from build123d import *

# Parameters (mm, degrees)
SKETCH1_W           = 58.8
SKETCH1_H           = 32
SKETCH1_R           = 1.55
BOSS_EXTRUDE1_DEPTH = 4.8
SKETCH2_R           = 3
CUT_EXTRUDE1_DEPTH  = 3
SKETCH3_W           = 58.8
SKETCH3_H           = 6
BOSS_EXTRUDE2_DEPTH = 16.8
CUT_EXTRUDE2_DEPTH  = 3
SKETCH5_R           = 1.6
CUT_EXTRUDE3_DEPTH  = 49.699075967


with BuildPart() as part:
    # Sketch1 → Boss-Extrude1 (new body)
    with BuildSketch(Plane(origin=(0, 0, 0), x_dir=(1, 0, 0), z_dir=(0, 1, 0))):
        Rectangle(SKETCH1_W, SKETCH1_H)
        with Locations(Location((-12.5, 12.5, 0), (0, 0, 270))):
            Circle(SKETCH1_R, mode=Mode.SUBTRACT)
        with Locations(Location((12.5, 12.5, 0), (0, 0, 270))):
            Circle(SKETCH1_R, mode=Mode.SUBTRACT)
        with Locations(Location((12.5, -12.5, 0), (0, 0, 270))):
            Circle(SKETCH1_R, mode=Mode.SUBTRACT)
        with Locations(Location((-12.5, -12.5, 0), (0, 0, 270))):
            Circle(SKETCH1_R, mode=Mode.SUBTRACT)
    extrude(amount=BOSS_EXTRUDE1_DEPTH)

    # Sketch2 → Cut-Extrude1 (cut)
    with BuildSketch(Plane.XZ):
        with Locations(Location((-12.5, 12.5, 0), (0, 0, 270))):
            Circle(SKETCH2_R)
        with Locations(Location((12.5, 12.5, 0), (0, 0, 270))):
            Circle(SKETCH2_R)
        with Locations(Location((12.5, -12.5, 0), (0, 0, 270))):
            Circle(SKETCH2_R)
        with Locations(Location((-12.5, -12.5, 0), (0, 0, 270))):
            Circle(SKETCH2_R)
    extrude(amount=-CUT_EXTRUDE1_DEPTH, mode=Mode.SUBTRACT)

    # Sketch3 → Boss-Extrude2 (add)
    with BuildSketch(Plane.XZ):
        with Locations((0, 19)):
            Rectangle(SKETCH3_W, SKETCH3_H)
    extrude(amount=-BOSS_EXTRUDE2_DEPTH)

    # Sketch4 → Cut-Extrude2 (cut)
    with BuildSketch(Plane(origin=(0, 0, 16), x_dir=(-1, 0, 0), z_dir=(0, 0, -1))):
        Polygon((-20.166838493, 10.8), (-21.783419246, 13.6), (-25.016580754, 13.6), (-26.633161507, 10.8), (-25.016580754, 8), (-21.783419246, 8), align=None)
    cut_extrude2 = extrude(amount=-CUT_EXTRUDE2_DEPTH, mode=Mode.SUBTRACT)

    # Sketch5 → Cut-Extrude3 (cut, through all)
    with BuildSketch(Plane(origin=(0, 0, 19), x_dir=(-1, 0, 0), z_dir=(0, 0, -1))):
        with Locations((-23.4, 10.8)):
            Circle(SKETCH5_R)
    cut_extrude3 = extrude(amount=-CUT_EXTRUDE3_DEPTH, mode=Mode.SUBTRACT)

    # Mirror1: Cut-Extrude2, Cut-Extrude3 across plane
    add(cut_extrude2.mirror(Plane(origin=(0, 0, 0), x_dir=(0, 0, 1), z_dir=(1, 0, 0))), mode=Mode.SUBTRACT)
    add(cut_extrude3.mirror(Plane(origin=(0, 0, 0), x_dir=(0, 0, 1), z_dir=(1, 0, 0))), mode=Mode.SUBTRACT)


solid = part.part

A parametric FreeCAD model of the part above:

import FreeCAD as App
import Part
import Sketcher
Q = App.Units.Quantity

doc = App.newDocument("Part")
params = doc.addObject("Spreadsheet::Sheet", "Params")
for row, (alias, value) in enumerate([
    ("sketch1_diameter", "3.1 mm"),
    ("sketch1_height", "32 mm"),
    ("sketch1_width", "58.8 mm"),
    ("pad1_length", "4.8 mm"),
    ("sketch2_diameter", "6 mm"),
    ("pocket1_length", "3 mm"),
    ("sketch3_height", "6 mm"),
    ("sketch3_width", "58.8 mm"),
    ("pad2_length", "16.8 mm"),
    ("pocket2_length", "3 mm"),
    ("sketch5_diameter", "3.2 mm"),
], start=1):
    params.set(f"A{row}", alias)
    params.set(f"B{row}", "=" + value)
    params.setAlias(f"B{row}", alias)

body = doc.addObject("PartDesign::Body", "Body")

# Sketch on XZ plane
sketch1 = body.newObject("Sketcher::SketchObject", "Sketch")
sketch1.AttachmentSupport = (doc.getObject("XZ_Plane"), [""])
sketch1.MapMode = "FlatFace"
sketch1.addGeometry([
    Part.LineSegment(App.Vector(-29.4, -16, 0), App.Vector(-29.4, 16, 0)),  # 0
    Part.LineSegment(App.Vector(-29.4, 16, 0), App.Vector(29.4, 16, 0)),  # 1
    Part.LineSegment(App.Vector(29.4, 16, 0), App.Vector(29.4, -16, 0)),  # 2
    Part.LineSegment(App.Vector(29.4, -16, 0), App.Vector(-29.4, -16, 0)),  # 3
    Part.Circle(App.Vector(-12.5, 12.5, 0), App.Vector(0, 0, 1), 1.6),  # 4
    Part.Circle(App.Vector(12.5, 12.5, 0), App.Vector(0, 0, 1), 1.6),  # 5
    Part.Circle(App.Vector(-12.5, -12.5, 0), App.Vector(0, 0, 1), 1.6),  # 6
    Part.Circle(App.Vector(12.5, -12.5, 0), App.Vector(0, 0, 1), 1.6),  # 7
], False)
sketch1.addConstraint([
    Sketcher.Constraint("Coincident", 0, 2, 1, 1),
    Sketcher.Constraint("Coincident", 1, 2, 2, 1),
    Sketcher.Constraint("Coincident", 2, 2, 3, 1),
    Sketcher.Constraint("Coincident", 3, 2, 0, 1),
    Sketcher.Constraint("Vertical", 0),
    Sketcher.Constraint("Horizontal", 1),
    Sketcher.Constraint("Vertical", 2),
    Sketcher.Constraint("Horizontal", 3),
    Sketcher.Constraint("Equal", 4, 5),
    Sketcher.Constraint("Equal", 5, 6),
    Sketcher.Constraint("Equal", 6, 7),
    Sketcher.Constraint("Symmetric", 5, 3, 6, 3, -1, 1),
    Sketcher.Constraint("Symmetric", 4, 3, 7, 3, -1, 1),
    Sketcher.Constraint("Symmetric", 0, 2, 2, 2, -1, 1),
    Sketcher.Constraint("Symmetric", 4, 3, 5, 3, -2),
    Sketcher.Constraint("Diameter", 4, Q("3.1 mm")),
    Sketcher.Constraint("DistanceY", 0, 1, 0, 2, Q("32 mm")),
    Sketcher.Constraint("DistanceX", 1, 1, 1, 2, Q("58.8 mm")),
    Sketcher.Constraint("DistanceX", 4, 3, 5, 3, Q("25 mm")),
    Sketcher.Constraint("DistanceY", 6, 3, 4, 3, Q("25 mm")),
])
sketch1.setExpression("Constraints[15]", "Params.sketch1_diameter")
sketch1.setExpression("Constraints[16]", "Params.sketch1_height")
sketch1.setExpression("Constraints[17]", "Params.sketch1_width")
pad1 = body.newObject("PartDesign::Pad", "Pad")
pad1.Profile = sketch1
pad1.setExpression("Length", "Params.pad1_length")
pad1.Reversed = True

# Sketch on XZ plane
sketch2 = body.newObject("Sketcher::SketchObject", "Sketch001")
sketch2.AttachmentSupport = (doc.getObject("XZ_Plane"), [""])
sketch2.MapMode = "FlatFace"
sketch2.addGeometry([
    Part.Circle(App.Vector(-12.5, 12.5, 0), App.Vector(0, 0, 1), 3),
    Part.Circle(App.Vector(12.5, 12.5, 0), App.Vector(0, 0, 1), 3),
    Part.Circle(App.Vector(12.5, -12.5, 0), App.Vector(0, 0, 1), 3),
    Part.Circle(App.Vector(-12.5, -12.5, 0), App.Vector(0, 0, 1), 3),
], False)
sketch2.addConstraint([
    Sketcher.Constraint("Equal", 0, 1),
    Sketcher.Constraint("Equal", 1, 2),
    Sketcher.Constraint("Equal", 2, 3),
    Sketcher.Constraint("Symmetric", 0, 3, 2, 3, -1, 1),
    Sketcher.Constraint("Symmetric", 1, 3, 3, 3, -1, 1),
    Sketcher.Constraint("Symmetric", 0, 3, 1, 3, -2),
    Sketcher.Constraint("Diameter", 0, Q("6 mm")),
    Sketcher.Constraint("DistanceX", 0, 3, 1, 3, Q("25 mm")),
    Sketcher.Constraint("DistanceY", 2, 3, 1, 3, Q("25 mm")),
])
sketch2.setExpression("Constraints[6]", "Params.sketch2_diameter")
pocket1 = body.newObject("PartDesign::Pocket", "Pocket")
pocket1.Profile = sketch2
pocket1.setExpression("Length", "Params.pocket1_length")

# Sketch on XZ plane
sketch3 = body.newObject("Sketcher::SketchObject", "Sketch002")
sketch3.AttachmentSupport = (doc.getObject("XZ_Plane"), [""])
sketch3.MapMode = "FlatFace"
sketch3.addGeometry([
    Part.LineSegment(App.Vector(-29, 22, 0), App.Vector(-29, 16, 0)),
    Part.LineSegment(App.Vector(-29, 16, 0), App.Vector(29, 16, 0)),
    Part.LineSegment(App.Vector(29, 16, 0), App.Vector(29, 22, 0)),
    Part.LineSegment(App.Vector(29, 22, 0), App.Vector(-29, 22, 0)),
], False)
sketch3.addConstraint([
    Sketcher.Constraint("Coincident", 0, 2, 1, 1),
    Sketcher.Constraint("Coincident", 1, 2, 2, 1),
    Sketcher.Constraint("Coincident", 2, 2, 3, 1),
    Sketcher.Constraint("Coincident", 3, 2, 0, 1),
    Sketcher.Constraint("Vertical", 0),
    Sketcher.Constraint("Horizontal", 1),
    Sketcher.Constraint("Vertical", 2),
    Sketcher.Constraint("Horizontal", 3),
    Sketcher.Constraint("DistanceY", 0, 2, 0, 1, Q("6 mm")),
    Sketcher.Constraint("DistanceX", 1, 1, 1, 2, Q("58.8 mm")),
    Sketcher.Constraint("DistanceY", -1, 1, 0, 2, Q("16 mm")),
    Sketcher.Constraint("DistanceX", 0, 2, -1, 1, Q("29.4 mm")),
])
sketch3.setExpression("Constraints[8]", "Params.sketch3_height")
sketch3.setExpression("Constraints[9]", "Params.sketch3_width")
pad2 = body.newObject("PartDesign::Pad", "Pad001")
pad2.Profile = sketch3
pad2.setExpression("Length", "Params.pad2_length")
pad2.Reversed = True

# Sketch on XY plane
sketch4 = body.newObject("Sketcher::SketchObject", "Sketch003")
sketch4.AttachmentSupport = (doc.getObject("XY_Plane"), [""])
sketch4.MapMode = "FlatFace"
sketch4.AttachmentOffset = App.Placement(App.Vector(0, 0, 16), App.Rotation())
sketch4.addGeometry([
    Part.LineSegment(App.Vector(20.2, 10.8, 0), App.Vector(21.8, 13.6, 0)),  # 0
    Part.LineSegment(App.Vector(21.8, 13.6, 0), App.Vector(25, 13.6, 0)),  # 1
    Part.LineSegment(App.Vector(25, 13.6, 0), App.Vector(26.6, 10.8, 0)),  # 2
    Part.LineSegment(App.Vector(26.6, 10.8, 0), App.Vector(25, 8, 0)),  # 3
    Part.LineSegment(App.Vector(25, 8, 0), App.Vector(21.8, 8, 0)),  # 4
    Part.LineSegment(App.Vector(21.8, 8, 0), App.Vector(20.2, 10.8, 0)),  # 5
], False)
sketch4.addConstraint([
    Sketcher.Constraint("Coincident", 0, 2, 1, 1),
    Sketcher.Constraint("Coincident", 1, 2, 2, 1),
    Sketcher.Constraint("Coincident", 2, 2, 3, 1),
    Sketcher.Constraint("Coincident", 3, 2, 4, 1),
    Sketcher.Constraint("Coincident", 4, 2, 5, 1),
    Sketcher.Constraint("Coincident", 5, 2, 0, 1),
    Sketcher.Constraint("Horizontal", 1),
    Sketcher.Constraint("Horizontal", 4),
    Sketcher.Constraint("Parallel", 0, 3),
    Sketcher.Constraint("Parallel", 2, 5),
    Sketcher.Constraint("Horizontal", 2, 2, 5, 2),
    Sketcher.Constraint("Vertical", 1, 2, 3, 2),
    Sketcher.Constraint("Vertical", 0, 2, 4, 2),
    Sketcher.Constraint("Angle", 0, Q("60 deg")),
    Sketcher.Constraint("DistanceY", -1, 1, 3, 2, Q("8 mm")),
    Sketcher.Constraint("DistanceY", -1, 1, 0, 2, Q("13.6 mm")),
    Sketcher.Constraint("DistanceX", 1, 1, 1, 2, Q("3.233162 mm")),
    Sketcher.Constraint("DistanceX", -1, 1, 0, 2, Q("21.783419 mm")),
])
pocket2 = body.newObject("PartDesign::Pocket", "Pocket001")
pocket2.Profile = sketch4
pocket2.setExpression("Length", "Params.pocket2_length")
pocket2.Reversed = True

# Sketch on XY plane
sketch5 = body.newObject("Sketcher::SketchObject", "Sketch004")
sketch5.AttachmentSupport = (doc.getObject("XY_Plane"), [""])
sketch5.MapMode = "FlatFace"
sketch5.AttachmentOffset = App.Placement(App.Vector(0, 0, 19), App.Rotation())
sketch5.addGeometry(Part.Circle(App.Vector(23.4, 10.8, 0), App.Vector(0, 0, 1), 1.6), False)
sketch5.addConstraint([
    Sketcher.Constraint("Diameter", 0, Q("3.2 mm")),
    Sketcher.Constraint("DistanceX", -1, 1, 0, 3, Q("23.4 mm")),
    Sketcher.Constraint("DistanceY", -1, 1, 0, 3, Q("10.8 mm")),
])
sketch5.setExpression("Constraints[0]", "Params.sketch5_diameter")
pocket3 = body.newObject("PartDesign::Pocket", "Pocket002")
pocket3.Profile = sketch5
pocket3.Type = "ThroughAll"
pocket3.Reversed = True
doc.recompute()

mirrored = body.newObject("PartDesign::Mirrored", "Mirrored")
mirrored.Originals = [pocket2, pocket3]
mirrored.MirrorPlane = (doc.getObject("YZ_Plane"), [""])
body.Tip = mirrored

doc.recompute()
